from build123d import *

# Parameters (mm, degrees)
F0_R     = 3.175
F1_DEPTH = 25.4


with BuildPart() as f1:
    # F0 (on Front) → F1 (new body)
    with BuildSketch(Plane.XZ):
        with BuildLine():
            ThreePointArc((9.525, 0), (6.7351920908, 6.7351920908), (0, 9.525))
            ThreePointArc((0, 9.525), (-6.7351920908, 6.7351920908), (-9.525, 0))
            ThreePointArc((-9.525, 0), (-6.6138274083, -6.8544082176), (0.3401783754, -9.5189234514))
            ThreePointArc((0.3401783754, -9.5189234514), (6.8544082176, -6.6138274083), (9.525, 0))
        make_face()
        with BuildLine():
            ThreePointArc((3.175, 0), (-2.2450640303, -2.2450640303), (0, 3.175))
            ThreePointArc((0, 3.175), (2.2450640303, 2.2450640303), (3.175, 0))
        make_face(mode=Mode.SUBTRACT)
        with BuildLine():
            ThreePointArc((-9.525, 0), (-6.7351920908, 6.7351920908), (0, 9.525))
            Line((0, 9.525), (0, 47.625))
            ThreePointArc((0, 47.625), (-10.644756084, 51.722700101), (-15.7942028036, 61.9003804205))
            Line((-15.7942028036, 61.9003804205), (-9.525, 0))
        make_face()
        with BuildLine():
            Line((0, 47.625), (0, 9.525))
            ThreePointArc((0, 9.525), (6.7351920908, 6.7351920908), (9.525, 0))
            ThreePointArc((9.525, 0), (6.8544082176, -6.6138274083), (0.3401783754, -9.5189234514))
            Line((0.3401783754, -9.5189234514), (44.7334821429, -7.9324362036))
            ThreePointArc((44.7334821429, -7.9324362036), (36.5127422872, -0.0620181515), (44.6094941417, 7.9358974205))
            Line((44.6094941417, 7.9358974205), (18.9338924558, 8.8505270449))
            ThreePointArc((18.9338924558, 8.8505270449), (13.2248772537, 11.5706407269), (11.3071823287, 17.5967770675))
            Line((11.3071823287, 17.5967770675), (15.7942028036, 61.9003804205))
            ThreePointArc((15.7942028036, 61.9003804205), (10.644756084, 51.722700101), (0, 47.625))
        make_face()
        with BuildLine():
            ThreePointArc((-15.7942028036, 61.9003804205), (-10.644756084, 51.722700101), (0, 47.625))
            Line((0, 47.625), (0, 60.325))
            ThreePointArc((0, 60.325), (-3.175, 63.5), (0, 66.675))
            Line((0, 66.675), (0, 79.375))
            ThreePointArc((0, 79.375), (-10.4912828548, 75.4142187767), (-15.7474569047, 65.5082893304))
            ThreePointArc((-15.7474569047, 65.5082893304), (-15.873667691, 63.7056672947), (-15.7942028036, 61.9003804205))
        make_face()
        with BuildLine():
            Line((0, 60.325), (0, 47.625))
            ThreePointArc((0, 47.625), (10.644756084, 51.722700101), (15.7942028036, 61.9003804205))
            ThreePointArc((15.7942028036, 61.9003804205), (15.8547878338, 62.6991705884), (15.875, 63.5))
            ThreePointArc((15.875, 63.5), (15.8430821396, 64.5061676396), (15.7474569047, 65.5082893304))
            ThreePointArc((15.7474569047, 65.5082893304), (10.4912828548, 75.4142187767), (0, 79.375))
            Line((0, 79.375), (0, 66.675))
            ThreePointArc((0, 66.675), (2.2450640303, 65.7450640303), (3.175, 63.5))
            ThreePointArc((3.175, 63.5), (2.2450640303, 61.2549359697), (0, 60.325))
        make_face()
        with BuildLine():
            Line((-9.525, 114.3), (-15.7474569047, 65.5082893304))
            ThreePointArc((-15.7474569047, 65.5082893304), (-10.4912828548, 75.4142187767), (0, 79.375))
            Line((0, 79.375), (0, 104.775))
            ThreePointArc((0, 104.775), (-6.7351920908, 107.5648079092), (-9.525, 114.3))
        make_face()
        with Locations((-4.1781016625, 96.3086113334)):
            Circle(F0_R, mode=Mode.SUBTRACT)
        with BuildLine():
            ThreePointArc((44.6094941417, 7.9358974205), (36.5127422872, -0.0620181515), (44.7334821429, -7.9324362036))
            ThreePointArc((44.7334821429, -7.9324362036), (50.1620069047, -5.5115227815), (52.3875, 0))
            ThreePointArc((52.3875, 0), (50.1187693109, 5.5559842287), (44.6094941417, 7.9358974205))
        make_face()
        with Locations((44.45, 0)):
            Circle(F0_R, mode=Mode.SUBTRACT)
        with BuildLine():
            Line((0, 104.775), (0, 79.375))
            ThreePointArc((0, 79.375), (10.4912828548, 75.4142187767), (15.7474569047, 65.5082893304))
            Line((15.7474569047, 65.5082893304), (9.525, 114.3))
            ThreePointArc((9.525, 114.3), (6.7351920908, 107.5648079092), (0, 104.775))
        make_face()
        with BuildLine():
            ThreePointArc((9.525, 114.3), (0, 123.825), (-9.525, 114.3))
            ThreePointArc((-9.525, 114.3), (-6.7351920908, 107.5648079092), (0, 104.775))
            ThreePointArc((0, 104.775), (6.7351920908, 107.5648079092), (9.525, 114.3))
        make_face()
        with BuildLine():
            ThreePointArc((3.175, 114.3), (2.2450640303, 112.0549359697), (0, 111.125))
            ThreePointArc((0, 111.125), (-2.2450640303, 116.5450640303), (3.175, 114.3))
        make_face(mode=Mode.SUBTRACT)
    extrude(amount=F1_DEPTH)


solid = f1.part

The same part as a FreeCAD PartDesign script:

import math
import FreeCAD as App
import Part
import Sketcher
Q = App.Units.Quantity

doc = App.newDocument("Part")
body = doc.addObject("PartDesign::Body", "Body")

# Sketch on XZ plane
sketch1 = doc.addObject("Sketcher::SketchObject", "Sketch")
body.addObject(sketch1)
sketch1.AttachmentSupport = (doc.XZ_Plane, [""])
sketch1.MapMode = "FlatFace"
sketch1.addGeometry(Part.ArcOfCircle(Part.Circle(App.Vector(0, 0, 0), App.Vector(0, 0, 1), 9.5), math.radians(180), math.radians(272)), False)
sketch1.addGeometry(Part.LineSegment(App.Vector(0.3, -9.5, 0), App.Vector(44.7, -7.9, 0)), False)
sketch1.addGeometry(Part.ArcOfCircle(Part.Circle(App.Vector(44.5, 0, 0), App.Vector(0, 0, 1), 7.9), math.radians(-88), math.radians(0)), False)
sketch1.addGeometry(Part.ArcOfCircle(Part.Circle(App.Vector(44.5, 0, 0), App.Vector(0, 0, 1), 7.9), math.radians(0), math.radians(89)), False)
sketch1.addGeometry(Part.LineSegment(App.Vector(44.6, 7.9, 0), App.Vector(18.9, 8.9, 0)), False)
sketch1.addGeometry(Part.ArcOfCircle(Part.Circle(App.Vector(19.2, 16.8, 0), App.Vector(0, 0, 1), 8), math.radians(174), math.radians(268)), False)
sketch1.addGeometry(Part.LineSegment(App.Vector(11.3, 17.6, 0), App.Vector(15.8, 61.9, 0)), False)
sketch1.addGeometry(Part.ArcOfCircle(Part.Circle(App.Vector(0, 63.5, 0), App.Vector(0, 0, 1), 15.9), math.radians(-5.78), math.radians(0)), False)
sketch1.addGeometry(Part.ArcOfCircle(Part.Circle(App.Vector(0, 63.5, 0), App.Vector(0, 0, 1), 15.9), math.radians(0), math.radians(7.27)), False)
sketch1.addGeometry(Part.LineSegment(App.Vector(15.7, 65.5, 0), App.Vector(9.5, 114.3, 0)), False)
sketch1.addGeometry(Part.ArcOfCircle(Part.Circle(App.Vector(0, 114.3, 0), App.Vector(0, 0, 1), 9.5), math.radians(0), math.radians(180)), False)
sketch1.addGeometry(Part.LineSegment(App.Vector(-9.5, 114.3, 0), App.Vector(-15.7, 65.5, 0)), False)
sketch1.addGeometry(Part.ArcOfCircle(Part.Circle(App.Vector(0, 63.5, 0), App.Vector(0, 0, 1), 15.9), math.radians(172.73), math.radians(185.78)), False)
sketch1.addGeometry(Part.LineSegment(App.Vector(-15.8, 61.9, 0), App.Vector(-9.5, 0, 0)), False)
sketch1.addGeometry(Part.ArcOfCircle(Part.Circle(App.Vector(0, 0, 0), App.Vector(0, 0, 1), 3.2), math.radians(0), math.radians(90)), False)
sketch1.addGeometry(Part.ArcOfCircle(Part.Circle(App.Vector(0, 0, 0), App.Vector(0, 0, 1), 3.2), math.radians(90), math.radians(360)), False)
sketch1.addGeometry(Part.Circle(App.Vector(44.5, 0, 0), App.Vector(0, 0, 1), 3.2), False)
sketch1.addGeometry(Part.ArcOfCircle(Part.Circle(App.Vector(0, 63.5, 0), App.Vector(0, 0, 1), 3.2), math.radians(90), math.radians(270)), False)
sketch1.addGeometry(Part.ArcOfCircle(Part.Circle(App.Vector(0, 63.5, 0), App.Vector(0, 0, 1), 3.2), math.radians(0), math.radians(90)), False)
sketch1.addGeometry(Part.ArcOfCircle(Part.Circle(App.Vector(0, 63.5, 0), App.Vector(0, 0, 1), 3.2), math.radians(-90), math.radians(0)), False)
sketch1.addGeometry(Part.Circle(App.Vector(-4.2, 96.3, 0), App.Vector(0, 0, 1), 3.2), False)
sketch1.addGeometry(Part.ArcOfCircle(Part.Circle(App.Vector(0, 114.3, 0), App.Vector(0, 0, 1), 3.2), math.radians(0), math.radians(270)), False)
sketch1.addGeometry(Part.ArcOfCircle(Part.Circle(App.Vector(0, 114.3, 0), App.Vector(0, 0, 1), 3.2), math.radians(-90), math.radians(0)), False)
sketch1.addConstraint(Sketcher.Constraint("Tangent", 0, 2, 1, 1))
sketch1.addConstraint(Sketcher.Constraint("Tangent", 1, 2, 2, 1))
sketch1.addConstraint(Sketcher.Constraint("Tangent", 2, 2, 3, 1))
sketch1.addConstraint(Sketcher.Constraint("Coincident", 3, 2, 4, 1))
sketch1.addConstraint(Sketcher.Constraint("Tangent", 4, 2, 5, 2))
sketch1.addConstraint(Sketcher.Constraint("Tangent", 5, 1, 6, 1))
sketch1.addConstraint(Sketcher.Constraint("Tangent", 6, 2, 7, 1))
sketch1.addConstraint(Sketcher.Constraint("Tangent", 7, 2, 8, 1))
sketch1.addConstraint(Sketcher.Constraint("Tangent", 8, 2, 9, 1))
sketch1.addConstraint(Sketcher.Constraint("Coincident", 9, 2, 10, 1))
sketch1.addConstraint(Sketcher.Constraint("Coincident", 10, 2, 11, 1))
sketch1.addConstraint(Sketcher.Constraint("Tangent", 11, 2, 12, 1))
sketch1.addConstraint(Sketcher.Constraint("Tangent", 12, 2, 13, 1))
sketch1.addConstraint(Sketcher.Constraint("Coincident", 13, 2, 0, 1))
sketch1.addConstraint(Sketcher.Constraint("Tangent", 14, 1, 15, 2))
sketch1.addConstraint(Sketcher.Constraint("Coincident", 15, 1, 14, 2))
sketch1.addConstraint(Sketcher.Constraint("Tangent", 17, 1, 18, 2))
sketch1.addConstraint(Sketcher.Constraint("Tangent", 18, 1, 19, 2))
sketch1.addConstraint(Sketcher.Constraint("Tangent", 19, 1, 17, 2))
sketch1.addConstraint(Sketcher.Constraint("Tangent", 21, 1, 22, 2))
sketch1.addConstraint(Sketcher.Constraint("Coincident", 22, 1, 21, 2))
sketch1.addConstraint(Sketcher.Constraint("Coincident", 0, 3, -1, 1))
sketch1.addConstraint(Sketcher.Constraint("Coincident", 14, 3, -1, 1))
sketch1.addConstraint(Sketcher.Constraint("Coincident", 12, 3, 7, 3))
sketch1.addConstraint(Sketcher.Constraint("Coincident", 16, 3, 2, 3))
sketch1.addConstraint(Sketcher.Constraint("Coincident", 17, 3, 7, 3))
sketch1.addConstraint(Sketcher.Constraint("Coincident", 21, 3, 10, 3))
sketch1.addConstraint(Sketcher.Constraint("Equal", 2, 3))
sketch1.addConstraint(Sketcher.Constraint("Equal", 7, 8))
sketch1.addConstraint(Sketcher.Constraint("Equal", 0, 10))
sketch1.addConstraint(Sketcher.Constraint("Equal", 8, 12))
sketch1.addConstraint(Sketcher.Constraint("Equal", 15, 16))
sketch1.addConstraint(Sketcher.Constraint("Equal", 16, 17))
sketch1.addConstraint(Sketcher.Constraint("Equal", 19, 20))
sketch1.addConstraint(Sketcher.Constraint("Equal", 20, 21))
sketch1.addConstraint(Sketcher.Constraint("Symmetric", 9, 2, 10, 2, -2))
sketch1.addConstraint(Sketcher.Constraint("Symmetric", 6, 2, 12, 2, -2))
sketch1.addConstraint(Sketcher.Constraint("PointOnObject", 2, 3, -1))
sketch1.addConstraint(Sketcher.Constraint("PointOnObject", 2, 2, -1))
sketch1.addConstraint(Sketcher.Constraint("PointOnObject", 13, 2, -1))
sketch1.addConstraint(Sketcher.Constraint("PointOnObject", 14, 1, -1))
sketch1.addConstraint(Sketcher.Constraint("PointOnObject", 15, 1, -2))
sketch1.addConstraint(Sketcher.Constraint("PointOnObject", 17, 1, -2))
sketch1.addConstraint(Sketcher.Constraint("PointOnObject", 19, 1, -2))
sketch1.addConstraint(Sketcher.Constraint("PointOnObject", 22, 1, -2))
sketch1.addConstraint(Sketcher.Constraint("Horizontal", 19, 3, 7, 2))
sketch1.addConstraint(Sketcher.Constraint("Horizontal", 22, 3, 9, 2))
sketch1.addConstraint(Sketcher.Constraint("Horizontal", 7, 2, 18, 1))
sketch1.addConstraint(Sketcher.Constraint("Horizontal", 10, 2, 21, 1))
sketch1.addConstraint(Sketcher.Constraint("Diameter", 16, Q("0.25 in")))
sketch1.addConstraint(Sketcher.Constraint("Radius", 0, Q("0.375 in")))
sketch1.addConstraint(Sketcher.Constraint("Radius", 2, Q("0.3125 in")))
sketch1.addConstraint(Sketcher.Constraint("Radius", 5, Q("0.313 in")))
sketch1.addConstraint(Sketcher.Constraint("Radius", 7, Q("0.625 in")))
sketch1.addConstraint(Sketcher.Constraint("DistanceY", 8, 3, 10, 3, Q("2 in")))
sketch1.addConstraint(Sketcher.Constraint("DistanceY", -1, 1, 7, 3, Q("2.5 in")))
sketch1.addConstraint(Sketcher.Constraint("DistanceX", -1, 1, 2, 3, Q("1.75 in")))
sketch1.addConstraint(Sketcher.Constraint("DistanceX", 20, 3, -1, 1, Q("4.178102 mm")))
sketch1.addConstraint(Sketcher.Constraint("DistanceX", 4, 2, 3, 2, Q("25.675602 mm")))
sketch1.addConstraint(Sketcher.Constraint("DistanceX", -1, 1, 5, 3, Q("19.216919 mm")))
sketch1.addConstraint(Sketcher.Constraint("DistanceY", -1, 1, 20, 3, Q("96.308611 mm")))
pad1 = doc.addObject("PartDesign::Pad", "Pad")
body.addObject(pad1)
pad1.Profile = sketch1
pad1.Length = Q("1 in")

doc.recompute()
